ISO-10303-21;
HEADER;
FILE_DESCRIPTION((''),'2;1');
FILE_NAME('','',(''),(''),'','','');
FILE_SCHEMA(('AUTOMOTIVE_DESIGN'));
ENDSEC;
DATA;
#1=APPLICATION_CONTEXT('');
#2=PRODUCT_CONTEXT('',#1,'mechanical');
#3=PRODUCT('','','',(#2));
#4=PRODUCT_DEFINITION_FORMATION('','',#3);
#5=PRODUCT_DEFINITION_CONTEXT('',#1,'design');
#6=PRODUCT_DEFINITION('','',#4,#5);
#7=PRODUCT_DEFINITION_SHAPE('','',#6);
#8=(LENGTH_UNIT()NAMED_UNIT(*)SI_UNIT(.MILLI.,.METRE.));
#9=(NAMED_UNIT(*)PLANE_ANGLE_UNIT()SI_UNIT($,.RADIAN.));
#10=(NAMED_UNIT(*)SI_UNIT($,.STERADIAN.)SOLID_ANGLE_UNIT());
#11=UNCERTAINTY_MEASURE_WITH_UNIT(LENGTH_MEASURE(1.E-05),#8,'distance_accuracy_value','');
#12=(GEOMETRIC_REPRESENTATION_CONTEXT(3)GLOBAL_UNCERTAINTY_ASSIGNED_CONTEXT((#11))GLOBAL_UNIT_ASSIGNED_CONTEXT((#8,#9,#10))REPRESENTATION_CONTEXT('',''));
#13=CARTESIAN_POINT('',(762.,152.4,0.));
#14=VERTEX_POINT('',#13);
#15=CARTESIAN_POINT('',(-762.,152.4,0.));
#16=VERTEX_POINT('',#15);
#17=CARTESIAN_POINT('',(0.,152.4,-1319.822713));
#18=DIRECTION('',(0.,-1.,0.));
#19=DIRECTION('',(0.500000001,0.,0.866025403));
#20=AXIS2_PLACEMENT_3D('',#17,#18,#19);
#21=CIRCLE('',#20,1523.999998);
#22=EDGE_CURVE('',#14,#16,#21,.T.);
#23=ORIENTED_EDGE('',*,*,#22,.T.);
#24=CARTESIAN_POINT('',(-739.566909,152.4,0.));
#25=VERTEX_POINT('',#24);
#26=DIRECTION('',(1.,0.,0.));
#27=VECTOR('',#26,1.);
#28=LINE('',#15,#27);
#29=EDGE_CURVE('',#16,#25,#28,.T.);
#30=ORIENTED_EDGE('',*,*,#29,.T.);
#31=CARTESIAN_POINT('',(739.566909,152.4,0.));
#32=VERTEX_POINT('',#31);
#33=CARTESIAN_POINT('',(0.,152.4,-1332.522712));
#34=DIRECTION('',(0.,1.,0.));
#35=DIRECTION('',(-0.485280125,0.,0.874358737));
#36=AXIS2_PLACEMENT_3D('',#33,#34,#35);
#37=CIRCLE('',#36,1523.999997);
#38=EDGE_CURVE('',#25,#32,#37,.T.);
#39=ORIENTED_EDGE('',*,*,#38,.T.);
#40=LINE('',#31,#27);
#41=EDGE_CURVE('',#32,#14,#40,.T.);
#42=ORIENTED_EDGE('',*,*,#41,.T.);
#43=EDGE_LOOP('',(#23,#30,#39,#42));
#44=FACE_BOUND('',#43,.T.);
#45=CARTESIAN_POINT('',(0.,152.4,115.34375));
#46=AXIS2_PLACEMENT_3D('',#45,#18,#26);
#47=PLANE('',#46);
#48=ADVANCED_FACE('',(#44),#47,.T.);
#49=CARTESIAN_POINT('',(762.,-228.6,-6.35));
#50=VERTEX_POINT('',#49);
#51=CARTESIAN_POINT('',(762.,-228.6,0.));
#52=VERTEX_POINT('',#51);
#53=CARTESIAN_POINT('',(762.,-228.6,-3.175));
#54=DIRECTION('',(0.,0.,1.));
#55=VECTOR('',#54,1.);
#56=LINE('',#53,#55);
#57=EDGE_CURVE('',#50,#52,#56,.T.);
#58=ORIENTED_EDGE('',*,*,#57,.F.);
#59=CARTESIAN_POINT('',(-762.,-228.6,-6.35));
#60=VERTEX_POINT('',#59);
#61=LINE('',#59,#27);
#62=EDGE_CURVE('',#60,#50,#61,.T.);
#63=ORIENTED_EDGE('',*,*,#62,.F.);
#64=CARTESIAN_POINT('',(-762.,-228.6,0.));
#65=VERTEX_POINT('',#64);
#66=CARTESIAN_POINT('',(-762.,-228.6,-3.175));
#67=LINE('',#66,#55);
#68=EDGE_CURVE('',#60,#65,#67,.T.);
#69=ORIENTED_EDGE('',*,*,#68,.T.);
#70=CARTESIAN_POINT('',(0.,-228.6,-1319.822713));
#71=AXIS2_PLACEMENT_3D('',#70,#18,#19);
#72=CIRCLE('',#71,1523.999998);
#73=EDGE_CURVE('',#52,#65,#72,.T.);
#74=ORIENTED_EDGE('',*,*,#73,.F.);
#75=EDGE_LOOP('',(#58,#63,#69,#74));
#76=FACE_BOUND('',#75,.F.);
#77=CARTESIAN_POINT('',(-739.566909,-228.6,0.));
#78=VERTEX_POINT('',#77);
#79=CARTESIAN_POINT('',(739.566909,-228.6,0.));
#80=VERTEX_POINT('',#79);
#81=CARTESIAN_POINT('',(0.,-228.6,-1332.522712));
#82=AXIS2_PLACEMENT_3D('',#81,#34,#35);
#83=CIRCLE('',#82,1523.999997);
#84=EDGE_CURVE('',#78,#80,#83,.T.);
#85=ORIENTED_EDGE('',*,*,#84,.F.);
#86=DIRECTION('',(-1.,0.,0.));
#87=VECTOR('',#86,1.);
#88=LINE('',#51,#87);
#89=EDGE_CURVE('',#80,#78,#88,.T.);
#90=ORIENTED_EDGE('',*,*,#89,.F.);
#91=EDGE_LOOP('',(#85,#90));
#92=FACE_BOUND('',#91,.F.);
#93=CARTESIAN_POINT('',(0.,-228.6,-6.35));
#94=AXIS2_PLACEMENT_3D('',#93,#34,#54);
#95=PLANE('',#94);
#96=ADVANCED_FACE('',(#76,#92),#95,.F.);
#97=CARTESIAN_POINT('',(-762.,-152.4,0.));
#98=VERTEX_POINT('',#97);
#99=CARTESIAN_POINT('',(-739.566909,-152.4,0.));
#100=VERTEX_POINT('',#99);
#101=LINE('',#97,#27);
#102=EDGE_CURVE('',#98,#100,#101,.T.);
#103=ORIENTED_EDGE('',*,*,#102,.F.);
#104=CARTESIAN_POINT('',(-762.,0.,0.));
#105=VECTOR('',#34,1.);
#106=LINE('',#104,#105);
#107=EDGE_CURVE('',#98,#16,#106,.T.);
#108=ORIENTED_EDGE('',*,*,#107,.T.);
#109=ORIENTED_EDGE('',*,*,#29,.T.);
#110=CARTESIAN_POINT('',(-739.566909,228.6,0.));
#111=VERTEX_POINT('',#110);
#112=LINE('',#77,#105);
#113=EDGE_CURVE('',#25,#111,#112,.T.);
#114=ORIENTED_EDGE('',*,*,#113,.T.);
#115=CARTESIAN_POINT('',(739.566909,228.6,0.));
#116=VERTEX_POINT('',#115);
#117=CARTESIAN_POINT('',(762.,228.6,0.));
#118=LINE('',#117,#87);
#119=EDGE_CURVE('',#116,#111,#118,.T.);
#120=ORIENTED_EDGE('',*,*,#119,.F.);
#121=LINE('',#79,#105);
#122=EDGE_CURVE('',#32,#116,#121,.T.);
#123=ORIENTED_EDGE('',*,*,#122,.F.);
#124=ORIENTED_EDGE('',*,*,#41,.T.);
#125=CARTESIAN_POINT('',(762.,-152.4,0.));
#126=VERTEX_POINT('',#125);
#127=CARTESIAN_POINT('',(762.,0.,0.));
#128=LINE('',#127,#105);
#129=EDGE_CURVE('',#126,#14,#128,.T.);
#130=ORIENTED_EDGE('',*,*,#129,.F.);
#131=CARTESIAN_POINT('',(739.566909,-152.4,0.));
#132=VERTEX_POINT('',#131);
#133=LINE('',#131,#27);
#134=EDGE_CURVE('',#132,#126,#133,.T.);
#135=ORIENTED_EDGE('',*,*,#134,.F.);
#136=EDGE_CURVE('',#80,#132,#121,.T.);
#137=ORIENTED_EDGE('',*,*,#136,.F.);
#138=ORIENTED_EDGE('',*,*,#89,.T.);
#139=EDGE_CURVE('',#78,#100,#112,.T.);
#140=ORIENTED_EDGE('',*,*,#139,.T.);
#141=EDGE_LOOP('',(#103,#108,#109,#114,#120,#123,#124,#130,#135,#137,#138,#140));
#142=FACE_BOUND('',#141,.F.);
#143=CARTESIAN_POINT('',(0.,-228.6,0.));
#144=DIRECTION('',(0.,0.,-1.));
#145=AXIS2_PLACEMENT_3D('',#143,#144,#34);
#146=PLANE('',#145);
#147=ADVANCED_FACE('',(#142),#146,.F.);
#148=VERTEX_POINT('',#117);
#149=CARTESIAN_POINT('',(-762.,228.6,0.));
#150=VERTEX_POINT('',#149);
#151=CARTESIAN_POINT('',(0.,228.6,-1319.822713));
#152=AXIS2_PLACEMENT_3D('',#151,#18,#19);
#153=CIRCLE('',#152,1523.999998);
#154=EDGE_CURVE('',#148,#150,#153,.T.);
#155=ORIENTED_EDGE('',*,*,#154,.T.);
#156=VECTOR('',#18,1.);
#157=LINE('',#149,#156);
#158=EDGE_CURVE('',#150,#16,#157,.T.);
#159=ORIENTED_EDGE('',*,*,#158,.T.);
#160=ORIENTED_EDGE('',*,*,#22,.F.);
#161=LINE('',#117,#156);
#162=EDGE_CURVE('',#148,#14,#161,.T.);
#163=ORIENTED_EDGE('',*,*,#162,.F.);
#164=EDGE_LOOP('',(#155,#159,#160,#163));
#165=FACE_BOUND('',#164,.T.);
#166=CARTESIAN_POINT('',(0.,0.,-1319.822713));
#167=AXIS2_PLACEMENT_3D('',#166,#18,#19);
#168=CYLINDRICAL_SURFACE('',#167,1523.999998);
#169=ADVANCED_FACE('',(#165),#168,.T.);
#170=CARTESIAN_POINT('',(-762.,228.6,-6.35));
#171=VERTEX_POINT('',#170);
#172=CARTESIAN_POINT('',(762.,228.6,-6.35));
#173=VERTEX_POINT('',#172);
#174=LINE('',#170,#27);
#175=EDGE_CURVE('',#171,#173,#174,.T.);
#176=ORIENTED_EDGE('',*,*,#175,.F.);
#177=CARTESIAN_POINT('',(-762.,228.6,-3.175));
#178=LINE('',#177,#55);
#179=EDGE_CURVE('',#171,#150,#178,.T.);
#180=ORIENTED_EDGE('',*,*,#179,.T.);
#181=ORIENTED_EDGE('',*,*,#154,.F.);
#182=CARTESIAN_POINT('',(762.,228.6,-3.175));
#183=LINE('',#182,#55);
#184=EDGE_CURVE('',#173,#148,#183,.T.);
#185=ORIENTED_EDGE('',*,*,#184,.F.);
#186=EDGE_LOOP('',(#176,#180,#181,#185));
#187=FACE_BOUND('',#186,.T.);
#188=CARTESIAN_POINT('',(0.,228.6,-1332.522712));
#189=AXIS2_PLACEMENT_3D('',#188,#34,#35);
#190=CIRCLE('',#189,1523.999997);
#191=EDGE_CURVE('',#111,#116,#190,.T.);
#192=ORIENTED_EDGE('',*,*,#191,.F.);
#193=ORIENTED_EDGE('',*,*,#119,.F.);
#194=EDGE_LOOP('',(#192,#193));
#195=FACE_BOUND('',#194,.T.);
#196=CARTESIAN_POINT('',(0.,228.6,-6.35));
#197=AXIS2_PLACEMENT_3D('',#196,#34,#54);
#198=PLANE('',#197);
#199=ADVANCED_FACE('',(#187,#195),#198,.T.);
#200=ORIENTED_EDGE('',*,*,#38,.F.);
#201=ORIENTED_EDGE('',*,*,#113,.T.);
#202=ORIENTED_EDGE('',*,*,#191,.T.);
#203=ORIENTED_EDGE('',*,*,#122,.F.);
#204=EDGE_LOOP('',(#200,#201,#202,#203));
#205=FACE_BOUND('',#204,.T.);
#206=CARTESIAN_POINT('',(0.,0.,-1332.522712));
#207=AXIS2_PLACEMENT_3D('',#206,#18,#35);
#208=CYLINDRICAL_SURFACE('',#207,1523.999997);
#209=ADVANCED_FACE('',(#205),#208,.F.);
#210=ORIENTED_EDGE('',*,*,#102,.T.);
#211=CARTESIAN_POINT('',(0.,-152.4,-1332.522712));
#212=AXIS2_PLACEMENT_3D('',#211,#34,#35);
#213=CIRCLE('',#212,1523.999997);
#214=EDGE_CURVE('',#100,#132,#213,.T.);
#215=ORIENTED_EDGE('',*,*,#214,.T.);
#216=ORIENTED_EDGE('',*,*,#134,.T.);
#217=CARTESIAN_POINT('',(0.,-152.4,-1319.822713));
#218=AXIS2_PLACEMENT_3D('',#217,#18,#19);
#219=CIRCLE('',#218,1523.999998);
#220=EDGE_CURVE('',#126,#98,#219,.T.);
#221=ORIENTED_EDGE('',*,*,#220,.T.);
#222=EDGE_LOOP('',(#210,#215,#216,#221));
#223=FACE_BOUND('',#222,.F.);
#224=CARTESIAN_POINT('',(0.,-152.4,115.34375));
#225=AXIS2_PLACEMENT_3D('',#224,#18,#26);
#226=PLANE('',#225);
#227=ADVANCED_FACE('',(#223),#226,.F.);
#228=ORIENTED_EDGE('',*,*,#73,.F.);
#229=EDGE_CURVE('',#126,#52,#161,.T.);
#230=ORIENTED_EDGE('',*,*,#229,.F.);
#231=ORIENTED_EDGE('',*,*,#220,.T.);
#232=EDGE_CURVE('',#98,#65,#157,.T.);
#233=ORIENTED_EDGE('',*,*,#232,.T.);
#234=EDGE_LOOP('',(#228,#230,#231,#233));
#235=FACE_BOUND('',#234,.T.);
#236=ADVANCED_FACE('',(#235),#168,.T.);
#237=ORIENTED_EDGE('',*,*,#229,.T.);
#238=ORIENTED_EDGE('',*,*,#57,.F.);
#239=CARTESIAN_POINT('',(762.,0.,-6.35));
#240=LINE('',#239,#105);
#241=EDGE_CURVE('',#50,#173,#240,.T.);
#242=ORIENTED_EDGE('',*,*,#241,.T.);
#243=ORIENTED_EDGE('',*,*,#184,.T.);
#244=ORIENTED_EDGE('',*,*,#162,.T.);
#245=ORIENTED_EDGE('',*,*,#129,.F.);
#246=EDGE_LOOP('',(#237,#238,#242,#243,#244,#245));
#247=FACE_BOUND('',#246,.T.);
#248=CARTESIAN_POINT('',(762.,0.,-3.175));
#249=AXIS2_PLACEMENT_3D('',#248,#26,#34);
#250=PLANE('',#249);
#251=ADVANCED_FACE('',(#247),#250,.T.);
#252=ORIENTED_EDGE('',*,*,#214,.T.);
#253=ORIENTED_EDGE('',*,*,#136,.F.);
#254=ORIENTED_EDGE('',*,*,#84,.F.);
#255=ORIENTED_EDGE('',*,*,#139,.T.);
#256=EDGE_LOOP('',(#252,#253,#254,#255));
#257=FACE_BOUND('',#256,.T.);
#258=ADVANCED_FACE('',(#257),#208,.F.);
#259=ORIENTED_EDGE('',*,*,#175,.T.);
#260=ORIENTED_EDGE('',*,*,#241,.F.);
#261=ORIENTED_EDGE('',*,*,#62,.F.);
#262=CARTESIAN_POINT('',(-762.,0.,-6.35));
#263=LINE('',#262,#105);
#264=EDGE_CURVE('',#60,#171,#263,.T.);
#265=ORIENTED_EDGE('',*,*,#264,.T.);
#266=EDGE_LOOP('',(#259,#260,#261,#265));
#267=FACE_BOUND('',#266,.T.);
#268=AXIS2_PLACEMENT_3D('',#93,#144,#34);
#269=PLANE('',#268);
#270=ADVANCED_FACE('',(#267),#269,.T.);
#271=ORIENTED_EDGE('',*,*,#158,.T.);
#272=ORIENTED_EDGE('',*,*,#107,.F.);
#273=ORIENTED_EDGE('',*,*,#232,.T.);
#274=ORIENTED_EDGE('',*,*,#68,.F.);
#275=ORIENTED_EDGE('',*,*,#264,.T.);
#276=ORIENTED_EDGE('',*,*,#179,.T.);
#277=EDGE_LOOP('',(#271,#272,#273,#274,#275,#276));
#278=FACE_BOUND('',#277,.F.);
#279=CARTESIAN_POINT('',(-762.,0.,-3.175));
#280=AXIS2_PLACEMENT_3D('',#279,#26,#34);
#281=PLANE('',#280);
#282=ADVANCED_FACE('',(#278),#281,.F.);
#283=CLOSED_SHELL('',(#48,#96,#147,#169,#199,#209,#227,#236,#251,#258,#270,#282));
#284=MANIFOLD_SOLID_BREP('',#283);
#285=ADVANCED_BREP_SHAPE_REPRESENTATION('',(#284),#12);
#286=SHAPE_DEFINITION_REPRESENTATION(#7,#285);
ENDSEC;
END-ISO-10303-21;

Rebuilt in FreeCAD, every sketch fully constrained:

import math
import FreeCAD as App
import Part
import Sketcher

V = App.Vector
Q = App.Units.Quantity

doc = App.newDocument("Part")
body = doc.addObject("PartDesign::Body", "Body")
body.AllowCompound = True

# Sketch on XZ plane
sketch1 = body.newObject("Sketcher::SketchObject", "Sketch")
sketch1.AttachmentSupport = (doc.getObject("XZ_Plane"), [""])
sketch1.MapMode = "FlatFace"
sketch1.addGeometry([
    Part.LineSegment(V(740, 0, 0), V(762, 0, 0)),
    Part.ArcOfCircle(Part.Circle(V(0, -1320, 0), V(0, 0, 1), 1524), math.radians(60), math.radians(120)),
    Part.LineSegment(V(-762, 0, 0), V(-740, 0, 0)),
    Part.ArcOfCircle(Part.Circle(V(0, -1333, 0), V(0, 0, 1), 1524), math.radians(61), math.radians(119)),
], False)
sketch1.addConstraint([
    Sketcher.Constraint("Coincident", 0, 2, 1, 1),
    Sketcher.Constraint("Coincident", 1, 2, 2, 1),
    Sketcher.Constraint("Coincident", 2, 2, 3, 2),
    Sketcher.Constraint("Coincident", 3, 1, 0, 1),
    Sketcher.Constraint("Horizontal", 0),
    Sketcher.Constraint("Horizontal", 2),
    Sketcher.Constraint("Equal", 1, 3),
    Sketcher.Constraint("PointOnObject", 1, 3, -2),
    Sketcher.Constraint("PointOnObject", 3, 3, -2),
    Sketcher.Constraint("PointOnObject", 0, 2, -1),
    Sketcher.Constraint("PointOnObject", 2, 2, -1),
    Sketcher.Constraint("Radius", 1, Q("59.9999999 in")),
    Sketcher.Constraint("DistanceX", -1, 1, 0, 2, Q("30 in")),
    Sketcher.Constraint("DistanceY", 3, 3, 1, 3, Q("0.5 in")),
])
pad1 = body.newObject("PartDesign::Pad", "Pad")
pad1.Profile = sketch1
pad1.Length = Q("18 in")
pad1.Midplane = True

# Sketch on XZ plane
sketch2 = body.newObject("Sketcher::SketchObject", "Sketch001")
sketch2.AttachmentSupport = (doc.getObject("XZ_Plane"), [""])
sketch2.MapMode = "FlatFace"
sketch2.addGeometry([
    Part.LineSegment(V(740, 0, 0), V(762, 0, 0)),
    Part.ArcOfCircle(Part.Circle(V(0, -1320, 0), V(0, 0, 1), 1524), math.radians(60), math.radians(120)),
    Part.LineSegment(V(-762, 0, 0), V(-740, 0, 0)),
    Part.ArcOfCircle(Part.Circle(V(0, -1333, 0), V(0, 0, 1), 1524), math.radians(61), math.radians(119)),
], False)
sketch2.addConstraint([
    Sketcher.Constraint("Coincident", 0, 2, 1, 1),
    Sketcher.Constraint("Coincident", 1, 2, 2, 1),
    Sketcher.Constraint("Coincident", 2, 2, 3, 2),
    Sketcher.Constraint("Coincident", 3, 1, 0, 1),
    Sketcher.Constraint("Horizontal", 0),
    Sketcher.Constraint("Horizontal", 2),
    Sketcher.Constraint("Equal", 1, 3),
    Sketcher.Constraint("PointOnObject", 1, 3, -2),
    Sketcher.Constraint("PointOnObject", 3, 3, -2),
    Sketcher.Constraint("PointOnObject", 0, 2, -1),
    Sketcher.Constraint("PointOnObject", 2, 2, -1),
    Sketcher.Constraint("Radius", 1, Q("59.9999999 in")),
    Sketcher.Constraint("DistanceX", -1, 1, 0, 2, Q("30 in")),
    Sketcher.Constraint("DistanceY", 3, 3, 1, 3, Q("0.5 in")),
])
pocket1 = body.newObject("PartDesign::Pocket", "Pocket")
pocket1.Profile = sketch2
pocket1.Length = Q("12 in")
pocket1.Midplane = True

# Sketch on YZ plane
sketch3 = body.newObject("Sketcher::SketchObject", "Sketch002")
sketch3.AttachmentSupport = (doc.getObject("YZ_Plane"), [""])
sketch3.MapMode = "FlatFace"
sketch3.addGeometry([
    Part.LineSegment(V(-229, 0, 0), V(-229, -6, 0)),
    Part.LineSegment(V(-229, -6, 0), V(229, -6, 0)),
    Part.LineSegment(V(229, -6, 0), V(229, 0, 0)),
    Part.LineSegment(V(229, 0, 0), V(-229, 0, 0)),
], False)
sketch3.addConstraint([
    Sketcher.Constraint("Coincident", 0, 2, 1, 1),
    Sketcher.Constraint("Coincident", 1, 2, 2, 1),
    Sketcher.Constraint("Coincident", 2, 2, 3, 1),
    Sketcher.Constraint("Coincident", 3, 2, 0, 1),
    Sketcher.Constraint("Vertical", 0),
    Sketcher.Constraint("Horizontal", 1),
    Sketcher.Constraint("Vertical", 2),
    Sketcher.Constraint("Horizontal", 3),
    Sketcher.Constraint("Symmetric", 2, 2, 3, 2, -1, 1),
    Sketcher.Constraint("DistanceX", 1, 1, 1, 2, Q("18 in")),
    Sketcher.Constraint("DistanceY", 0, 2, 0, 1, Q("0.25 in")),
])
pad2 = body.newObject("PartDesign::Pad", "Pad001")
pad2.Profile = sketch3
pad2.Length = Q("60 in")
pad2.Midplane = True

doc.recompute()
